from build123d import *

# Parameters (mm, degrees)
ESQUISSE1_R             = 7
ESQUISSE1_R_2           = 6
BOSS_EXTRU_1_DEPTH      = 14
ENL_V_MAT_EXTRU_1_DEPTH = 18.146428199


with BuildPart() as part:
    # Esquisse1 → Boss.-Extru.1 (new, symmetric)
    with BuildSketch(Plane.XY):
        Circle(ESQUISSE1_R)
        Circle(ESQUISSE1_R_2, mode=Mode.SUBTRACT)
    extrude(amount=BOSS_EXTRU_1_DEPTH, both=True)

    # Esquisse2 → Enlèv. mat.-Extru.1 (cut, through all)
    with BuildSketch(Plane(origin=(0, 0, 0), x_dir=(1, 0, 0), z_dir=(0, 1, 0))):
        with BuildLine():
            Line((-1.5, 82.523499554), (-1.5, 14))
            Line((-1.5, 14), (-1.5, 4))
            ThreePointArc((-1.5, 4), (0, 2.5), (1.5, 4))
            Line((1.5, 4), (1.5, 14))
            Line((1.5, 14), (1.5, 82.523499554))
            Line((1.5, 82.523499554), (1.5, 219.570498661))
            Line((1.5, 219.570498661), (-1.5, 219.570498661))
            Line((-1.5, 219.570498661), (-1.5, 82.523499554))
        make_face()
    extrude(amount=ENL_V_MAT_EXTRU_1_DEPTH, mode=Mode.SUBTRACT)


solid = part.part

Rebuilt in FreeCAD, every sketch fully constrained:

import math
import FreeCAD as App
import Part
import Sketcher

V = App.Vector
Q = App.Units.Quantity

doc = App.newDocument("Part")
body = doc.addObject("PartDesign::Body", "Body")

sketch1 = body.newObject("Sketcher::SketchObject", "Sketch")
sketch1.AttachmentSupport = (doc.getObject("XY_Plane"), [""])
sketch1.MapMode = "FlatFace"
sketch1.addGeometry(Part.Circle(V(0, 0, 0), V(0, 0, 1), 7), False)
sketch1.addGeometry(Part.Circle(V(0, 0, 0), V(0, 0, 1), 6), False)
sketch1.addConstraint(Sketcher.Constraint("Coincident", 0, 3, -1, 1))
sketch1.addConstraint(Sketcher.Constraint("Coincident", 1, 3, -1, 1))
sketch1.addConstraint(Sketcher.Constraint("Diameter", 0, Q("14 mm")))
sketch1.addConstraint(Sketcher.Constraint("Diameter", 1, Q("12 mm")))
pad1 = body.newObject("PartDesign::Pad", "Pad")
pad1.Profile = sketch1
pad1.Length = 28
pad1.Midplane = True

sketch2 = body.newObject("Sketcher::SketchObject", "Sketch001")
sketch2.AttachmentSupport = (doc.getObject("XZ_Plane"), [""])
sketch2.MapMode = "FlatFace"
sketch2.addGeometry(Part.ArcOfCircle(Part.Circle(V(0, -4, 0), V(0, 0, 1), 1.5), math.radians(0), math.radians(180)), False)
sketch2.addGeometry(Part.LineSegment(V(1.5, -4, 0), V(1.5, -219.570499, 0)), False)
sketch2.addGeometry(Part.LineSegment(V(1.5, -219.570499, 0), V(-1.5, -219.570499, 0)), False)
sketch2.addGeometry(Part.LineSegment(V(-1.5, -219.570499, 0), V(-1.5, -4, 0)), False)
sketch2.addConstraint(Sketcher.Constraint("Tangent", 0, 1, 1, 1))
sketch2.addConstraint(Sketcher.Constraint("Coincident", 1, 2, 2, 1))
sketch2.addConstraint(Sketcher.Constraint("Coincident", 2, 2, 3, 1))
sketch2.addConstraint(Sketcher.Constraint("Tangent", 3, 2, 0, 2))
sketch2.addConstraint(Sketcher.Constraint("Vertical", 1))
sketch2.addConstraint(Sketcher.Constraint("Horizontal", 2))
sketch2.addConstraint(Sketcher.Constraint("Vertical", 3))
sketch2.addConstraint(Sketcher.Constraint("PointOnObject", 0, 3, -2))
sketch2.addConstraint(Sketcher.Constraint("Radius", 0, Q("1.5 mm")))
sketch2.addConstraint(Sketcher.Constraint("DistanceY", 0, 3, -1, 1, Q("4 mm")))
sketch2.addConstraint(Sketcher.Constraint("DistanceY", 1, 2, 1, 1, Q("215.570499 mm")))
pocket1 = body.newObject("PartDesign::Pocket", "Pocket")
pocket1.Profile = sketch2
pocket1.Type = "ThroughAll"

doc.recompute()
